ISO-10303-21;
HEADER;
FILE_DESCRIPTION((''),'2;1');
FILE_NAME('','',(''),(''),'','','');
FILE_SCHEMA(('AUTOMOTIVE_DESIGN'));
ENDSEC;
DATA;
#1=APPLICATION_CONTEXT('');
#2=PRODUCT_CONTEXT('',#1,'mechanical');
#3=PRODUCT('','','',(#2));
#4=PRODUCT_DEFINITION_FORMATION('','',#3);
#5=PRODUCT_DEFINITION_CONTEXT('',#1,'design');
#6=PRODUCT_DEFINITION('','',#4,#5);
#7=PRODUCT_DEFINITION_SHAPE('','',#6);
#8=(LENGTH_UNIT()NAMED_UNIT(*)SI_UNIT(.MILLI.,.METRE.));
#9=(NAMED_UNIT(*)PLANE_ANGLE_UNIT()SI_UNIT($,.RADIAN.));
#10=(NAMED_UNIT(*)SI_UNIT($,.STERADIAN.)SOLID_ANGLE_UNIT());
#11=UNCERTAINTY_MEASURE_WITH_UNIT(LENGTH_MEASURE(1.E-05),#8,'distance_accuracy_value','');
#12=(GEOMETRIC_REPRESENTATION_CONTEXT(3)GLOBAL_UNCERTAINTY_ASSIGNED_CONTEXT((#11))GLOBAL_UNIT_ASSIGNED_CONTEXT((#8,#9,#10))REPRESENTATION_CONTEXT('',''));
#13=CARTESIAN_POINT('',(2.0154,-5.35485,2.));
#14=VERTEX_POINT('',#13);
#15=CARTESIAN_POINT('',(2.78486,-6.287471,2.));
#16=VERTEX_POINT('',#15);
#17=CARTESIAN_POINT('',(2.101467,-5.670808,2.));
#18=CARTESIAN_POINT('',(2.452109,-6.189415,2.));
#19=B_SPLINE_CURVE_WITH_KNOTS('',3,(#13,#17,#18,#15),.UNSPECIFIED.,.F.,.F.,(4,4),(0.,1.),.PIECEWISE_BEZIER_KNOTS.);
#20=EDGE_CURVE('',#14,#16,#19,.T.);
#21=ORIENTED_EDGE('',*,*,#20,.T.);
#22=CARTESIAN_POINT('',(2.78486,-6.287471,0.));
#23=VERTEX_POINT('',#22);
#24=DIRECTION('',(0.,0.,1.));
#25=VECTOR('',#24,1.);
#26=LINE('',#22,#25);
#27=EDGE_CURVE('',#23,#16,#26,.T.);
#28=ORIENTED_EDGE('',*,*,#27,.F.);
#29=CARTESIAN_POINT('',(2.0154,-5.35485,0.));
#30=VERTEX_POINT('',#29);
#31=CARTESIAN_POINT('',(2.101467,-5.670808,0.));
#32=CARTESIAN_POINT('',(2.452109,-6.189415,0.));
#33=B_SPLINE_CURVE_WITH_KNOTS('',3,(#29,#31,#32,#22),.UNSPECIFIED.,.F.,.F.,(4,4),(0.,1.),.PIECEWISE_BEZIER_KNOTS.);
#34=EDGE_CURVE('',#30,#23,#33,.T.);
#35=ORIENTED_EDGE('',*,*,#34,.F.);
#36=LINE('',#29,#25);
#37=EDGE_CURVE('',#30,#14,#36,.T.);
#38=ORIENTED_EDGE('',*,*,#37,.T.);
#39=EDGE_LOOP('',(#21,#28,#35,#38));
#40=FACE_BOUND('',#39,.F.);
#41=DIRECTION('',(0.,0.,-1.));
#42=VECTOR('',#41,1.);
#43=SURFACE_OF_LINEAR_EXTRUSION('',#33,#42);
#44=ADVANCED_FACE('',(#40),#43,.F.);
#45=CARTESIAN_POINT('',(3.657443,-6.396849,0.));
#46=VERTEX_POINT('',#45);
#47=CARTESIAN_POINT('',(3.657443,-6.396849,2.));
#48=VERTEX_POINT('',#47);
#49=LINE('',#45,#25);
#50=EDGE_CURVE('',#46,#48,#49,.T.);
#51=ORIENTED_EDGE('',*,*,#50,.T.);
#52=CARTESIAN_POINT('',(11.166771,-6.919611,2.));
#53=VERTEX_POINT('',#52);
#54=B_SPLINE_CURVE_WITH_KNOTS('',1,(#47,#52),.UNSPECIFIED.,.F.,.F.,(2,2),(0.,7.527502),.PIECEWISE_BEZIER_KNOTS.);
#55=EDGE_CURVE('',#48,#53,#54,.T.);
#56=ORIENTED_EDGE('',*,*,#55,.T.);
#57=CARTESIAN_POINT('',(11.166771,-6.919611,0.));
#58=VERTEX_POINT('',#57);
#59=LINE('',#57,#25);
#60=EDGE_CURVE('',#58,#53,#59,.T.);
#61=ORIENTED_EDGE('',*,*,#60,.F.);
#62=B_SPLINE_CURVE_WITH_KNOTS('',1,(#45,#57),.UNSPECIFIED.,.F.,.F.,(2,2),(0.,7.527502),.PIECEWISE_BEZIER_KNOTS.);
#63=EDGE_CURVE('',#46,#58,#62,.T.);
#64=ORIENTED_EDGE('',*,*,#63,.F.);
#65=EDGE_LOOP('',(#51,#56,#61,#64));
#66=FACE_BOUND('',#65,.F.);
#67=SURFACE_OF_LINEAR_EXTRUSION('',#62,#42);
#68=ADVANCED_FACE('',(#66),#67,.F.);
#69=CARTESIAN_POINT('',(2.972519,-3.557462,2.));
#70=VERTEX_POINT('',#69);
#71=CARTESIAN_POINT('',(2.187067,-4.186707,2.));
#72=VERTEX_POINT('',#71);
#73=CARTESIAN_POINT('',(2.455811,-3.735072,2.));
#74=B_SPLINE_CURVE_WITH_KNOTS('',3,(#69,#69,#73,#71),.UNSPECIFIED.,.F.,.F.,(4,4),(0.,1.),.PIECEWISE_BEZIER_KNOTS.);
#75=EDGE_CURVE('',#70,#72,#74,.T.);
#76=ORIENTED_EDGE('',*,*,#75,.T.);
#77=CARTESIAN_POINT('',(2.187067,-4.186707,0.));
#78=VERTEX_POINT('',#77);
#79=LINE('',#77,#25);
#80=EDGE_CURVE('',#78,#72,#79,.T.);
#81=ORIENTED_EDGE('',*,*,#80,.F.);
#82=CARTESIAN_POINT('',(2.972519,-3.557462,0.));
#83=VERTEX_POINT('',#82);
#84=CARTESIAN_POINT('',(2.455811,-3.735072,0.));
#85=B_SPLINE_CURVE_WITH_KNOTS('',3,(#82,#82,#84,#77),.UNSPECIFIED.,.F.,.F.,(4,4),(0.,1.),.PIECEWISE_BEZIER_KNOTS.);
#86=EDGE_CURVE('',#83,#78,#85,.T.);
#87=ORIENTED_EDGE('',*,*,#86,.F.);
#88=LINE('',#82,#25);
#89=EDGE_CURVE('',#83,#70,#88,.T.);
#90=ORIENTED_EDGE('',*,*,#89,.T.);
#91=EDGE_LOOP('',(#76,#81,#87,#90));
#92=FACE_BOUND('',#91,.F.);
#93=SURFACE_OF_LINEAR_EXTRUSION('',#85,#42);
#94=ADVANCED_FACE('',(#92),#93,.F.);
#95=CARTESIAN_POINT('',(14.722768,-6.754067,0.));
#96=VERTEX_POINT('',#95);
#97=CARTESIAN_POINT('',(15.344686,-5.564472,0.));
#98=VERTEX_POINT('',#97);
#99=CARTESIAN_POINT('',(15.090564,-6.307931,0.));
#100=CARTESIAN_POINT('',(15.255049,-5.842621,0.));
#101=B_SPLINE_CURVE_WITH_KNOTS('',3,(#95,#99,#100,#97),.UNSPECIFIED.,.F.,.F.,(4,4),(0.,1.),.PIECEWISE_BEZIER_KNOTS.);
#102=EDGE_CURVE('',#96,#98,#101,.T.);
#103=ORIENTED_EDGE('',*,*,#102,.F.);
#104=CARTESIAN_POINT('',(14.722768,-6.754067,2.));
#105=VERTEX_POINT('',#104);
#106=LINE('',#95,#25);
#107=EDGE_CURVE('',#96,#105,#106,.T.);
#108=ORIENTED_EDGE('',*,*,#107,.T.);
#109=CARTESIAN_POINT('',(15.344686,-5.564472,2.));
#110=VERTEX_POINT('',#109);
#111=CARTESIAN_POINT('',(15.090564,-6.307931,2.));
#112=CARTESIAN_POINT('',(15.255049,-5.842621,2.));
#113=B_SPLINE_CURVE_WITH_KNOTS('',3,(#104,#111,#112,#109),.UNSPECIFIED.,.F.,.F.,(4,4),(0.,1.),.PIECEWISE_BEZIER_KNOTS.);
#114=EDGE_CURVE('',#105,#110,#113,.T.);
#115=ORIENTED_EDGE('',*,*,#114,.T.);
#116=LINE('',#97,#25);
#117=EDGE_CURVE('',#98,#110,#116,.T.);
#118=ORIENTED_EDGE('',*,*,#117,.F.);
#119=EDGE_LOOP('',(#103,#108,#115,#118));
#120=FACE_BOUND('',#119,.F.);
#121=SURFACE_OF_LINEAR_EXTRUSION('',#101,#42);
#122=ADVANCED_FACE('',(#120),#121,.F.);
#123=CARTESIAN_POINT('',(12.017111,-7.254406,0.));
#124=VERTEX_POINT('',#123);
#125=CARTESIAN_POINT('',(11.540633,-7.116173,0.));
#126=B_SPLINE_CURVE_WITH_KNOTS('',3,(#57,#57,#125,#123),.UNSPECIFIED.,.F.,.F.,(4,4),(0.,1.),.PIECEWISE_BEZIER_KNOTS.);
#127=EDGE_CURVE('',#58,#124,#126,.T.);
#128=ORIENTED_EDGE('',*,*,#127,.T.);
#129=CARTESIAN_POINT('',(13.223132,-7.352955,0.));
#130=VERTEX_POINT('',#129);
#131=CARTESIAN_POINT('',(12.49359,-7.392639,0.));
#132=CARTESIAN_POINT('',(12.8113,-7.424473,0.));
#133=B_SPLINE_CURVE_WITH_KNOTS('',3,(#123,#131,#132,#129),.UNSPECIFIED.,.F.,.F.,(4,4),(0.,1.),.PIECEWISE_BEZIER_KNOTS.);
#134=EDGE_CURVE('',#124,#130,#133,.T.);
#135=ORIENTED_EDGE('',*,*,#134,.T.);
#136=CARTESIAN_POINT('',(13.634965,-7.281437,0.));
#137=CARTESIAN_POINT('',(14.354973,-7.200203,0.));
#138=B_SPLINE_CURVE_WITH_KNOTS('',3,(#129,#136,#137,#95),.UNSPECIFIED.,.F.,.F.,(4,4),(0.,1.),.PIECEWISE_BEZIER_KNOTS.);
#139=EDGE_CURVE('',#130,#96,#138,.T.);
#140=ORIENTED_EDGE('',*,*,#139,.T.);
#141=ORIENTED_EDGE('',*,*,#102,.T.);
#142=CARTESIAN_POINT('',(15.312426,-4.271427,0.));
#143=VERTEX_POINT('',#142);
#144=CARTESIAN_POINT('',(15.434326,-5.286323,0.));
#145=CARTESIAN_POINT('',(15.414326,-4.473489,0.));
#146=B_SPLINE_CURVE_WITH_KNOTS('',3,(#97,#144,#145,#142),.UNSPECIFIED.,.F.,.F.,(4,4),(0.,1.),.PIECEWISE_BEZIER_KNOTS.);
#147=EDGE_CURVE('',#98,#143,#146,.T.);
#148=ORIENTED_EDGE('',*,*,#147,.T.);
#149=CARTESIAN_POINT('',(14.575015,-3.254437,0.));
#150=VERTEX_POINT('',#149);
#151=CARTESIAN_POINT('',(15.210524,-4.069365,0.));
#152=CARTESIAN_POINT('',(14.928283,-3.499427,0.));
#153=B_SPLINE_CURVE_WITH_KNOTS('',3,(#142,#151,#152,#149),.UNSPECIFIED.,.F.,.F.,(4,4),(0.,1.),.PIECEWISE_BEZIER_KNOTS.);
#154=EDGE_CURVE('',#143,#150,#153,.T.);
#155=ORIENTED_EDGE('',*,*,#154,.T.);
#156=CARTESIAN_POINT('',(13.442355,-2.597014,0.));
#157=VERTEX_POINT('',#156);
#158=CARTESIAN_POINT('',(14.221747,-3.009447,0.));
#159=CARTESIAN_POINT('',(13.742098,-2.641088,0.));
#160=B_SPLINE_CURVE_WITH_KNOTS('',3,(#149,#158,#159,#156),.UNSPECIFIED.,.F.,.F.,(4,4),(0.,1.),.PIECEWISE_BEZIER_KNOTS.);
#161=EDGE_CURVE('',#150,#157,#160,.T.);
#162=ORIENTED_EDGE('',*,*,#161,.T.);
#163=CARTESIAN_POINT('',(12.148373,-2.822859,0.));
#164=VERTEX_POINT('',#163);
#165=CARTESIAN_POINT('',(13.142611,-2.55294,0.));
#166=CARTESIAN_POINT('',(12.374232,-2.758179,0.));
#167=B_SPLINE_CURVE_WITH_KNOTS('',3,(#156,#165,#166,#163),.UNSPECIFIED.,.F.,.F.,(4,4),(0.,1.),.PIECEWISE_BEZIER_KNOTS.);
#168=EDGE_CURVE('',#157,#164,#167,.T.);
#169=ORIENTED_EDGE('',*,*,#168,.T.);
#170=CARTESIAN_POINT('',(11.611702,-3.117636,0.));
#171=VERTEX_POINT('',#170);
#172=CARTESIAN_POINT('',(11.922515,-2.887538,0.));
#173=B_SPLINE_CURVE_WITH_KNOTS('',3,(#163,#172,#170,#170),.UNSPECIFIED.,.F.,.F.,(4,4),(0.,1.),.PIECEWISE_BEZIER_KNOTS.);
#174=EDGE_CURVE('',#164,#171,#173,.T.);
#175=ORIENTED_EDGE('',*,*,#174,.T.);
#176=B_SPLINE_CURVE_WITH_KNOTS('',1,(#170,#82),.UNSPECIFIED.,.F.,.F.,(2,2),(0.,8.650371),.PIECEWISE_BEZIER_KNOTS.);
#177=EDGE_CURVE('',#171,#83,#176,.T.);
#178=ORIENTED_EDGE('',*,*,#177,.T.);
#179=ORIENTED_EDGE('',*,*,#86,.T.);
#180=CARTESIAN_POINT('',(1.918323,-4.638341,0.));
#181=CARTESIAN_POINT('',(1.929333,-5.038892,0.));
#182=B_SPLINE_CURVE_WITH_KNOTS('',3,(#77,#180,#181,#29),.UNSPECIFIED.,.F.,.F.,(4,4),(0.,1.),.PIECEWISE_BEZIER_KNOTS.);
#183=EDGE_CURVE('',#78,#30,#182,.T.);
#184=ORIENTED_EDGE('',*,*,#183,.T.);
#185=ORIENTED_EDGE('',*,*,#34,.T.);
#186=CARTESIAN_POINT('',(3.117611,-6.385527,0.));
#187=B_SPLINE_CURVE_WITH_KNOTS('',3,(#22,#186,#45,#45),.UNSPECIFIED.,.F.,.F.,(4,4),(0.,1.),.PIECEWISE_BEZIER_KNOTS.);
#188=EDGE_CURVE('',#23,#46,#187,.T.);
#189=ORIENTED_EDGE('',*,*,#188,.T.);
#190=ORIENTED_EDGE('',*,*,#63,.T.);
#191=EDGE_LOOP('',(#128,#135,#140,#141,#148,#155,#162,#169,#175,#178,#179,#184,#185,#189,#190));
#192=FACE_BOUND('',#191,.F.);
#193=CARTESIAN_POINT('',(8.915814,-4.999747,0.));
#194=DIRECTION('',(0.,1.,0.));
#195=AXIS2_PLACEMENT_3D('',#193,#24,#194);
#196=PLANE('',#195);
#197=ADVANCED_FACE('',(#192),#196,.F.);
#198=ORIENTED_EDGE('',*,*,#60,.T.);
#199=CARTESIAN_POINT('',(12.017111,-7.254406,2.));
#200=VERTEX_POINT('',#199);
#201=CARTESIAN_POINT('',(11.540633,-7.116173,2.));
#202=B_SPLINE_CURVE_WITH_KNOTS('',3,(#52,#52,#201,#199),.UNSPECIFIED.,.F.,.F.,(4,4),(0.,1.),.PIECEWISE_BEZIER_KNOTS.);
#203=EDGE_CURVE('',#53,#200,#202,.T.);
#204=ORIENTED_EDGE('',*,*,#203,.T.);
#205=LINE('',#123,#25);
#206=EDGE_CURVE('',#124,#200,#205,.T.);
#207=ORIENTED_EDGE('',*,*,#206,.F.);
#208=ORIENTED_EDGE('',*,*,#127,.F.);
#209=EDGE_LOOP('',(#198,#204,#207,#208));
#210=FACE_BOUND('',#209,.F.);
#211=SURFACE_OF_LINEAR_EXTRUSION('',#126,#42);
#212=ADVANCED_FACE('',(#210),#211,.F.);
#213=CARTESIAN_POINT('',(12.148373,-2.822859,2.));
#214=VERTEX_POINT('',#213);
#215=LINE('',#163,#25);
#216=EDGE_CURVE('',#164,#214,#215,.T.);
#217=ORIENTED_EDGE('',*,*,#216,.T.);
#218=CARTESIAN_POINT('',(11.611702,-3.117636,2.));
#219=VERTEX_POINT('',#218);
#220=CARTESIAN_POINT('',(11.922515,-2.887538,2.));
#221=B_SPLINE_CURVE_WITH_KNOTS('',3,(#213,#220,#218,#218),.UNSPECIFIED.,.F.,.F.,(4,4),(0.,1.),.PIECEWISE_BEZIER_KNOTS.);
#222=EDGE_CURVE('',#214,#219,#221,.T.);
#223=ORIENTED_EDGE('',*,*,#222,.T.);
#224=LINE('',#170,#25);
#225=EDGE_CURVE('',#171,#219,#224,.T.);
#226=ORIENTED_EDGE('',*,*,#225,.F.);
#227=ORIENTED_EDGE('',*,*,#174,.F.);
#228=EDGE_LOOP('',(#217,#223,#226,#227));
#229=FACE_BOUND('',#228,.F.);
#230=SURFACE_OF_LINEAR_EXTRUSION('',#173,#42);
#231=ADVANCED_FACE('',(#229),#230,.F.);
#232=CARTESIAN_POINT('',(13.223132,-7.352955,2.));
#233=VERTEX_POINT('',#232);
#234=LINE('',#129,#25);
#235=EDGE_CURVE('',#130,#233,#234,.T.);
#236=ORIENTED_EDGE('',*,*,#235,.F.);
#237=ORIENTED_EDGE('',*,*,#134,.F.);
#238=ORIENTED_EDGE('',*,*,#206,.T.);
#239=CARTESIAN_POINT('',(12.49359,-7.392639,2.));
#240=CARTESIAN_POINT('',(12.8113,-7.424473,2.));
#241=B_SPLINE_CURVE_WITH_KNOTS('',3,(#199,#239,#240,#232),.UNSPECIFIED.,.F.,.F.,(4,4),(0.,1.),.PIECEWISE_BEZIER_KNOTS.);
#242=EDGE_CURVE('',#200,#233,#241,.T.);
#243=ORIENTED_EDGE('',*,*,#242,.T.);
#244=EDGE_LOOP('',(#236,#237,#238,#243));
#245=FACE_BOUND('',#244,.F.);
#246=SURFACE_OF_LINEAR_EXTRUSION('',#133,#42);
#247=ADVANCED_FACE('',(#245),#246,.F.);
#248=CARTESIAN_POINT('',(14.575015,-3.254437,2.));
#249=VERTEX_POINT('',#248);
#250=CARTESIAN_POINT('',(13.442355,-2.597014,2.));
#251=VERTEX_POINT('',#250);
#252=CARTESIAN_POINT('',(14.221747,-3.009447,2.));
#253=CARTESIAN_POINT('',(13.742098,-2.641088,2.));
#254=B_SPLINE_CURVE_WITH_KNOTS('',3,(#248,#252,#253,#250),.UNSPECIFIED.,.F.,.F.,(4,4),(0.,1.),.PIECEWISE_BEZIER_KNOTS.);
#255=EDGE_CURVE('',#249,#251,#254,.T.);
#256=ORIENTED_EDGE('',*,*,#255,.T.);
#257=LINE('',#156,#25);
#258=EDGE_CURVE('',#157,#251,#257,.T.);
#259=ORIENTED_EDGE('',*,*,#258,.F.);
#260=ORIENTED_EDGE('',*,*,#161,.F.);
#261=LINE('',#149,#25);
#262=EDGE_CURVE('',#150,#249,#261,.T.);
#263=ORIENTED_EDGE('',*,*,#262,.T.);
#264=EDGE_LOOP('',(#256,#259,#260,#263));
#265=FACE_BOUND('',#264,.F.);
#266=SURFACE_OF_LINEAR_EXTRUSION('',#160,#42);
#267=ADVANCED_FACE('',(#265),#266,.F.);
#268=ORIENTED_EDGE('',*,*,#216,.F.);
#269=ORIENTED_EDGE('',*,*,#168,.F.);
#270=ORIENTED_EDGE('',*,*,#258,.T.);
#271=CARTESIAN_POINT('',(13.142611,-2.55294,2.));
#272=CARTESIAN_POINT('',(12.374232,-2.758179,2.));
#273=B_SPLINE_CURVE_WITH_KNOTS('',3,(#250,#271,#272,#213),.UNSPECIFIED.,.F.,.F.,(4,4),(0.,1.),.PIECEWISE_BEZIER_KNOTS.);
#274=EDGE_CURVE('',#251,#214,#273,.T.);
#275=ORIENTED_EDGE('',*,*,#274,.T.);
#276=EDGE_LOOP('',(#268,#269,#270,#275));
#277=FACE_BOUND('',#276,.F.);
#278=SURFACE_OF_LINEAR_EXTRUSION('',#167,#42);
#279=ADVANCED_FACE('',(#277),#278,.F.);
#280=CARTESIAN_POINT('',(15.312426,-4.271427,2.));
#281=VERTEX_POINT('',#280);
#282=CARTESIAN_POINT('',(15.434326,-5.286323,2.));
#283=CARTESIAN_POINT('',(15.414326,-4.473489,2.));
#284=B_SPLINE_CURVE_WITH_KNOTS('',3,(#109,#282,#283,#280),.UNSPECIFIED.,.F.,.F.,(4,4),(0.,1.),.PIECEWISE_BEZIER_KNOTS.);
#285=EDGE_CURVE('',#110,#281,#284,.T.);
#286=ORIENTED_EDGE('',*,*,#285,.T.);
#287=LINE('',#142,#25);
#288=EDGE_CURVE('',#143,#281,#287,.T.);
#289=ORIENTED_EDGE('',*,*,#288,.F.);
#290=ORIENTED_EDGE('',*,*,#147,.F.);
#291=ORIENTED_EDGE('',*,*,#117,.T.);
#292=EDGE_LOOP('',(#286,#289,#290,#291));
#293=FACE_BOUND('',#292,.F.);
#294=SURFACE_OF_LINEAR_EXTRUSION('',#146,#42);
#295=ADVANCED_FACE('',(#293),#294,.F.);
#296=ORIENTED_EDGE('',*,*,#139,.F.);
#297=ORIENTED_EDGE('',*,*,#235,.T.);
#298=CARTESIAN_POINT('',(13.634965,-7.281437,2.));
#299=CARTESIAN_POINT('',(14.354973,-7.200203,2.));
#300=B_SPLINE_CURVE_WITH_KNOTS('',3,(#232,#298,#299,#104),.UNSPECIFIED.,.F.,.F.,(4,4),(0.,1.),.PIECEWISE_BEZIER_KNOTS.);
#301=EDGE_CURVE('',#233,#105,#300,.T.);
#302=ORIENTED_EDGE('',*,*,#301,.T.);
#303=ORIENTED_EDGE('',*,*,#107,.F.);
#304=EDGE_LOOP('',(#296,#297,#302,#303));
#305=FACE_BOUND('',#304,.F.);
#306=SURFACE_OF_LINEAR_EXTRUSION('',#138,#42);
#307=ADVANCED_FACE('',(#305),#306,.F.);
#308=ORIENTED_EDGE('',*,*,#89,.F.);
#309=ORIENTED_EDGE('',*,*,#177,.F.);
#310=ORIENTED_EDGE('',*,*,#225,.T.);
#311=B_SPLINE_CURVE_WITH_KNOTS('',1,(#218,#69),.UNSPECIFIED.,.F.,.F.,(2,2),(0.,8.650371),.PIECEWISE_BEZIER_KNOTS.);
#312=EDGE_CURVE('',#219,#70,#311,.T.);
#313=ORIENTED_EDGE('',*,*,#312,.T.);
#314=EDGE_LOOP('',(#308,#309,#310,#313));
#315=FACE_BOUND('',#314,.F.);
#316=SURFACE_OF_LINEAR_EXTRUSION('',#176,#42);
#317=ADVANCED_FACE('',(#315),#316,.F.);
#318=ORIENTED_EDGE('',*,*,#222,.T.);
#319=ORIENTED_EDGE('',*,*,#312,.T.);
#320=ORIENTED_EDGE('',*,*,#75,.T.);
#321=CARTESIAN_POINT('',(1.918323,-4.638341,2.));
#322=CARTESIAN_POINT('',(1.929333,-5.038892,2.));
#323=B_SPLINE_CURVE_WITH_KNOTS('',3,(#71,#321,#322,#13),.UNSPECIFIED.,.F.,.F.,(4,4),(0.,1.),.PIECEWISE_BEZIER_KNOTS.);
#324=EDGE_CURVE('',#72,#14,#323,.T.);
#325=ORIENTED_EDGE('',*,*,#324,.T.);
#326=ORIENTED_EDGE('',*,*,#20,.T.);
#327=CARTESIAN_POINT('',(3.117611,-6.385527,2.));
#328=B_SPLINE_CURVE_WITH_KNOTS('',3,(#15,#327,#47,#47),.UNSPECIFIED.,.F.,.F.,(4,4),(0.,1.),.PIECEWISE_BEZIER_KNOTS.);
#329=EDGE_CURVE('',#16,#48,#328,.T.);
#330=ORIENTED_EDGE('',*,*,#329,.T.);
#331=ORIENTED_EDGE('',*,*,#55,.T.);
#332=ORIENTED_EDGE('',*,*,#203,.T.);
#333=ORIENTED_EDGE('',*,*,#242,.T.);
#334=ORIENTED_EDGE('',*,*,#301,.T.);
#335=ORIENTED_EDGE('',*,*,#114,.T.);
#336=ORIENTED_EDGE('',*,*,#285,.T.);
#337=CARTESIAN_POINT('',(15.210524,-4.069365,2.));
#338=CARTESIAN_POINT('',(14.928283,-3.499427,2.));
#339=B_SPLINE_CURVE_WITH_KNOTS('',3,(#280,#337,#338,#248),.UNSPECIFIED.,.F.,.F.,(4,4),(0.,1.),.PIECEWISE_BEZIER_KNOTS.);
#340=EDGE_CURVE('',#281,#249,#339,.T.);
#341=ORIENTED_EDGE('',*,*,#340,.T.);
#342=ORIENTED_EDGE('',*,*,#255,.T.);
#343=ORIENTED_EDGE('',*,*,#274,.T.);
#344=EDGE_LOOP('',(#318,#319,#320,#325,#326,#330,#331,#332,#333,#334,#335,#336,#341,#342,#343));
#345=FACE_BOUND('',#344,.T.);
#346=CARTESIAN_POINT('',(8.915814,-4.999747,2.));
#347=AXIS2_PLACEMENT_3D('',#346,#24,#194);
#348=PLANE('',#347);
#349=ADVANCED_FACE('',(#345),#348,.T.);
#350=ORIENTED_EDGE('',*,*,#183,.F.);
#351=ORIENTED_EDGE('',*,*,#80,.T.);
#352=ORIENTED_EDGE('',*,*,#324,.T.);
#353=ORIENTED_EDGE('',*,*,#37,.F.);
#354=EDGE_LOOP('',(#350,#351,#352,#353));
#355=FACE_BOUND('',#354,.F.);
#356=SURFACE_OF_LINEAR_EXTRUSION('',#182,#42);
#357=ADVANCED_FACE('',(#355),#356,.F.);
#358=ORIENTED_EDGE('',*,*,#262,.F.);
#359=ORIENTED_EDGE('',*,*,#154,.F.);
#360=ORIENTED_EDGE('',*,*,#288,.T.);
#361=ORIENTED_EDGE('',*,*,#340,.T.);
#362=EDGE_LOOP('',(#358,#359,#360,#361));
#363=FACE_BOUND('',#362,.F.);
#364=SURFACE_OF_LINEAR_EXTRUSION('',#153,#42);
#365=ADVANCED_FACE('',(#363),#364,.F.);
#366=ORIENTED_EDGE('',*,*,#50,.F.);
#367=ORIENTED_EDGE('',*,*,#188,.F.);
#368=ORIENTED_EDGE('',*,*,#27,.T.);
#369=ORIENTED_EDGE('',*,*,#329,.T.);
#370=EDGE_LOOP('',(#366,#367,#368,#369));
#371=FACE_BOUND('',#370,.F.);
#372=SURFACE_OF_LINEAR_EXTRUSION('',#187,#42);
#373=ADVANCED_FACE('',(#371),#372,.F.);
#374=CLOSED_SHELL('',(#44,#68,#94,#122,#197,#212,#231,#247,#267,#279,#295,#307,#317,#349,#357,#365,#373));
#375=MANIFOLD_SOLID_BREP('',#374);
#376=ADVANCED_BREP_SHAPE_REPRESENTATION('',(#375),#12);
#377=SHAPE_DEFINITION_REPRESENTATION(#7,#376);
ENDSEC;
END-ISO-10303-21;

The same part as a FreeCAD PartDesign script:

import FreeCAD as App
import Part
import Sketcher

V = App.Vector

doc = App.newDocument("Part")
body = doc.addObject("PartDesign::Body", "Body")

# Sketch on XY plane
sketch1 = doc.addObject("Sketcher::SketchObject", "Sketch")
body.addObject(sketch1)
sketch1.AttachmentSupport = (doc.XY_Plane, [""])
sketch1.MapMode = "FlatFace"
sketch1.addGeometry([
    Part.BSplineCurve([V(3.657443, -6.396849, 0), V(11.166771, -6.919611, 0)], [2, 2], [0, 7.527502], False, 1, [1, 1], False),  # 0
    Part.BSplineCurve([V(11.166771, -6.919611, 0), V(11.166771, -6.919611, 0), V(11.540633, -7.116173, 0), V(12.017111, -7.254406, 0)], [4, 4], [0, 1], False, 3, [1, 1, 1, 1], False),  # 1
    Part.BSplineCurve([V(12.017111, -7.254406, 0), V(12.49359, -7.392639, 0), V(12.8113, -7.424473, 0), V(13.223132, -7.352955, 0)], [4, 4], [0, 1], False, 3, [1, 1, 1, 1], False),  # 2
    Part.BSplineCurve([V(13.223132, -7.352955, 0), V(13.634965, -7.281437, 0), V(14.354973, -7.200203, 0), V(14.722768, -6.754067, 0)], [4, 4], [0, 1], False, 3, [1, 1, 1, 1], False),  # 3
    Part.BSplineCurve([V(14.722768, -6.754067, 0), V(15.090564, -6.307931, 0), V(15.255049, -5.842621, 0), V(15.344686, -5.564472, 0)], [4, 4], [0, 1], False, 3, [1, 1, 1, 1], False),  # 4
    Part.BSplineCurve([V(15.344686, -5.564472, 0), V(15.434326, -5.286323, 0), V(15.414326, -4.473489, 0), V(15.312426, -4.271427, 0)], [4, 4], [0, 1], False, 3, [1, 1, 1, 1], False),  # 5
    Part.BSplineCurve([V(15.312426, -4.271427, 0), V(15.210524, -4.069365, 0), V(14.928283, -3.499427, 0), V(14.575015, -3.254437, 0)], [4, 4], [0, 1], False, 3, [1, 1, 1, 1], False),  # 6
    Part.BSplineCurve([V(14.575015, -3.254437, 0), V(14.221747, -3.009447, 0), V(13.742098, -2.641088, 0), V(13.442355, -2.597014, 0)], [4, 4], [0, 1], False, 3, [1, 1, 1, 1], False),  # 7
    Part.BSplineCurve([V(13.442355, -2.597014, 0), V(13.142611, -2.55294, 0), V(12.374232, -2.758179, 0), V(12.148373, -2.822859, 0)], [4, 4], [0, 1], False, 3, [1, 1, 1, 1], False),  # 8
    Part.BSplineCurve([V(12.148373, -2.822859, 0), V(11.922515, -2.887538, 0), V(11.611702, -3.117636, 0), V(11.611702, -3.117636, 0)], [4, 4], [0, 1], False, 3, [1, 1, 1, 1], False),  # 9
    Part.BSplineCurve([V(11.611702, -3.117636, 0), V(2.972519, -3.557462, 0)], [2, 2], [0, 8.650371], False, 1, [1, 1], False),  # 10
    Part.BSplineCurve([V(2.972519, -3.557462, 0), V(2.972519, -3.557462, 0), V(2.455811, -3.735072, 0), V(2.187067, -4.186707, 0)], [4, 4], [0, 1], False, 3, [1, 1, 1, 1], False),  # 11
    Part.BSplineCurve([V(2.187067, -4.186707, 0), V(1.918323, -4.638341, 0), V(1.929333, -5.038892, 0), V(2.0154, -5.35485, 0)], [4, 4], [0, 1], False, 3, [1, 1, 1, 1], False),  # 12
    Part.BSplineCurve([V(2.0154, -5.35485, 0), V(2.101467, -5.670808, 0), V(2.452109, -6.189415, 0), V(2.78486, -6.287471, 0)], [4, 4], [0, 1], False, 3, [1, 1, 1, 1], False),  # 13
    Part.BSplineCurve([V(2.78486, -6.287471, 0), V(3.117611, -6.385527, 0), V(3.657443, -6.396849, 0), V(3.657443, -6.396849, 0)], [4, 4], [0, 1], False, 3, [1, 1, 1, 1], False),  # 14
], False)
sketch1.addConstraint([
    Sketcher.Constraint("Block", 0),
    Sketcher.Constraint("Block", 1),
    Sketcher.Constraint("Block", 2),
    Sketcher.Constraint("Block", 3),
    Sketcher.Constraint("Block", 4),
    Sketcher.Constraint("Block", 5),
    Sketcher.Constraint("Block", 6),
    Sketcher.Constraint("Block", 7),
    Sketcher.Constraint("Block", 8),
    Sketcher.Constraint("Block", 9),
    Sketcher.Constraint("Block", 10),
    Sketcher.Constraint("Block", 11),
    Sketcher.Constraint("Block", 12),
    Sketcher.Constraint("Block", 13),
    Sketcher.Constraint("Block", 14),
])
pad1 = doc.addObject("PartDesign::Pad", "Pad")
body.addObject(pad1)
pad1.Profile = sketch1
pad1.Length = 2

doc.recompute()
